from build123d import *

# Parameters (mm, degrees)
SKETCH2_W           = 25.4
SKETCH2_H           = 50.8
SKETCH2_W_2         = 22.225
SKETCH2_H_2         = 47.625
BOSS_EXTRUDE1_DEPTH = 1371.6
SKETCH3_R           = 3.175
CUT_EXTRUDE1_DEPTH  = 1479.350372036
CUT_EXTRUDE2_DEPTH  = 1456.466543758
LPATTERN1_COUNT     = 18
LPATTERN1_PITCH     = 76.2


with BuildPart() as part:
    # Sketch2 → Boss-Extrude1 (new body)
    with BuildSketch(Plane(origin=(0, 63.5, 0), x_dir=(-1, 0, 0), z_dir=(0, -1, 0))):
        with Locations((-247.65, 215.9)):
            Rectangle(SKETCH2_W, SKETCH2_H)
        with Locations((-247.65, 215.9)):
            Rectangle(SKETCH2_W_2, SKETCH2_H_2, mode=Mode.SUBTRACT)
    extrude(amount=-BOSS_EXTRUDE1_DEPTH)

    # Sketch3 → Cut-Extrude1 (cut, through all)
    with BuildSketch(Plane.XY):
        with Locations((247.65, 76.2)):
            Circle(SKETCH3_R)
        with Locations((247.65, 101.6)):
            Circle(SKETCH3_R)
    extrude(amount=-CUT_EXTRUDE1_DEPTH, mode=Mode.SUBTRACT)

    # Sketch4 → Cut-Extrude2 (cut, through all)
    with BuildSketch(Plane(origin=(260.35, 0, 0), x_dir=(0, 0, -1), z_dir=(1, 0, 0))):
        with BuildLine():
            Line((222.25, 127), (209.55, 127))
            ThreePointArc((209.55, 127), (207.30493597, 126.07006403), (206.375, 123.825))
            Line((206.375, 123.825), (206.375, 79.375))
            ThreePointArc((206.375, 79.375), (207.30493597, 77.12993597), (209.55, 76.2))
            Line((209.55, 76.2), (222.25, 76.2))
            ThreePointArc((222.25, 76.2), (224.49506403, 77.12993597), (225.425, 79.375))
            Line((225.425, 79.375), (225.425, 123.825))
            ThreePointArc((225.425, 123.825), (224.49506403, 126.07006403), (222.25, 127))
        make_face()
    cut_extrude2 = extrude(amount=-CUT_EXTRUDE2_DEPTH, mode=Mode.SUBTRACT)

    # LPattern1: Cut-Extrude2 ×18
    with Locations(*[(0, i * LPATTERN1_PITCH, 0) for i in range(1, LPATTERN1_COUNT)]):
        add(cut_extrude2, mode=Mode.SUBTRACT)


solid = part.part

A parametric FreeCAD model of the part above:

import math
import FreeCAD as App
import Part
import Sketcher

V = App.Vector
Q = App.Units.Quantity


def add_polygon(sketch, points):
    """Adds a closed chain of lines whose ends are joined by coincident constraints."""
    first, n = sketch.GeometryCount, len(points)
    for a, b in zip(points, points[1:] + points[:1]):
        sketch.addGeometry(Part.LineSegment(App.Vector(*a, 0), App.Vector(*b, 0)), False)
    for i in range(n):
        sketch.addConstraint(Sketcher.Constraint("Coincident", first + i, 2, first + (i + 1) % n, 1))

doc = App.newDocument("Part")
body = doc.addObject("PartDesign::Body", "Body")

sketch1 = doc.addObject("Sketcher::SketchObject", "Sketch")
body.addObject(sketch1)
sketch1.AttachmentSupport = (doc.XZ_Plane, [""])
sketch1.MapMode = "FlatFace"
sketch1.AttachmentOffset = App.Placement(V(0, 0, -2.5 * 25.4), App.Rotation())
add_polygon(sketch1, [(260, -241), (260, -190), (235, -190), (235, -241)])
add_polygon(sketch1, [(237, -192), (259, -192), (259, -240), (237, -240)])
sketch1.addConstraint([
    Sketcher.Constraint("Vertical", 0),
    Sketcher.Constraint("Horizontal", 1),
    Sketcher.Constraint("Vertical", 2),
    Sketcher.Constraint("Horizontal", 3),
    Sketcher.Constraint("Horizontal", 4),
    Sketcher.Constraint("Vertical", 5),
    Sketcher.Constraint("Horizontal", 6),
    Sketcher.Constraint("Vertical", 7),
    Sketcher.Constraint("DistanceX", 1, 2, 1, 1, Q("1 in")),
    Sketcher.Constraint("DistanceY", 0, 1, 0, 2, Q("2 in")),
    Sketcher.Constraint("DistanceY", 0, 2, -1, 1, Q("7.5 in")),
    Sketcher.Constraint("DistanceX", 4, 1, 4, 2, Q("0.875 in")),
    Sketcher.Constraint("DistanceY", 5, 2, 5, 1, Q("1.875 in")),
    Sketcher.Constraint("DistanceX", -1, 1, 0, 2, Q("10.25 in")),
    Sketcher.Constraint("DistanceX", -1, 1, 4, 2, Q("10.1875 in")),
    Sketcher.Constraint("DistanceY", 4, 2, -1, 1, Q("7.5625 in")),
])
pad1 = doc.addObject("PartDesign::Pad", "Pad")
body.addObject(pad1)
pad1.Profile = sketch1
pad1.Length = Q("54 in")
pad1.Reversed = True

sketch2 = doc.addObject("Sketcher::SketchObject", "Sketch001")
body.addObject(sketch2)
sketch2.AttachmentSupport = (doc.XY_Plane, [""])
sketch2.MapMode = "FlatFace"
sketch2.addGeometry([
    Part.Circle(V(247.7, 76.2, 0), V(0, 0, 1), 3.2),
    Part.Circle(V(247.7, 101.6, 0), V(0, 0, 1), 3.2),
], False)
sketch2.addConstraint([
    Sketcher.Constraint("Equal", 0, 1),
    Sketcher.Constraint("Vertical", 0, 3, 1, 3),
    Sketcher.Constraint("Diameter", 0, Q("0.25 in")),
    Sketcher.Constraint("DistanceY", -1, 1, 0, 3, Q("3 in")),
    Sketcher.Constraint("DistanceY", -1, 1, 1, 3, Q("4 in")),
    Sketcher.Constraint("DistanceX", -1, 1, 0, 3, Q("9.75 in")),
])
pocket1 = doc.addObject("PartDesign::Pocket", "Pocket")
body.addObject(pocket1)
pocket1.Profile = sketch2
pocket1.Type = "ThroughAll"

sketch3 = doc.addObject("Sketcher::SketchObject", "Sketch002")
body.addObject(sketch3)
sketch3.AttachmentSupport = (doc.YZ_Plane, [""])
sketch3.MapMode = "FlatFace"
sketch3.AttachmentOffset = App.Placement(V(0, 0, 10.25 * 25.4), App.Rotation())
sketch3.addGeometry([
    Part.LineSegment(V(127, -222.2, 0), V(127, -209.6, 0)),
    Part.ArcOfCircle(Part.Circle(V(123.8, -209.6, 0), V(0, 0, 1), 3.2), math.radians(0), math.radians(90)),
    Part.LineSegment(V(123.8, -206.4, 0), V(79.4, -206.4, 0)),
    Part.ArcOfCircle(Part.Circle(V(79.4, -209.6, 0), V(0, 0, 1), 3.2), math.radians(90), math.radians(180)),
    Part.LineSegment(V(76.2, -209.6, 0), V(76.2, -222.2, 0)),
    Part.ArcOfCircle(Part.Circle(V(79.4, -222.2, 0), V(0, 0, 1), 3.2), math.radians(-180), math.radians(-90)),
    Part.LineSegment(V(79.4, -225.4, 0), V(123.8, -225.4, 0)),
    Part.ArcOfCircle(Part.Circle(V(123.8, -222.2, 0), V(0, 0, 1), 3.2), math.radians(-90), math.radians(0)),
], False)
sketch3.addConstraint([
    Sketcher.Constraint("Tangent", 0, 2, 1, 1),
    Sketcher.Constraint("Tangent", 1, 2, 2, 1),
    Sketcher.Constraint("Tangent", 2, 2, 3, 1),
    Sketcher.Constraint("Tangent", 3, 2, 4, 1),
    Sketcher.Constraint("Tangent", 4, 2, 5, 1),
    Sketcher.Constraint("Tangent", 5, 2, 6, 1),
    Sketcher.Constraint("Tangent", 6, 2, 7, 1),
    Sketcher.Constraint("Tangent", 7, 2, 0, 1),
    Sketcher.Constraint("Vertical", 0),
    Sketcher.Constraint("Horizontal", 2),
    Sketcher.Constraint("Vertical", 4),
    Sketcher.Constraint("Horizontal", 6),
    Sketcher.Constraint("Equal", 1, 3),
    Sketcher.Constraint("Equal", 3, 5),
    Sketcher.Constraint("Equal", 5, 7),
    Sketcher.Constraint("DistanceY", 0, 1, 0, 2, Q("0.5 in")),
    Sketcher.Constraint("DistanceX", -1, 1, 0, 2, Q("5 in")),
    Sketcher.Constraint("DistanceX", -1, 1, 3, 2, Q("3 in")),
    Sketcher.Constraint("Radius", 1, Q("0.125 in")),
    Sketcher.Constraint("DistanceY", 1, 3, -1, 1, Q("8.25 in")),
])
pocket2 = doc.addObject("PartDesign::Pocket", "Pocket001")
body.addObject(pocket2)
pocket2.Profile = sketch3
pocket2.Type = "ThroughAll"
doc.recompute()

linearpattern = doc.addObject("PartDesign::LinearPattern", "LinearPattern")
body.addObject(linearpattern)
linearpattern.Originals = [pocket2]
linearpattern.Direction = (doc.Y_Axis, [""])
linearpattern.Mode = "offset"
linearpattern.Offset = Q("3 in")
linearpattern.Occurrences = 18
body.Tip = linearpattern

doc.recompute()
